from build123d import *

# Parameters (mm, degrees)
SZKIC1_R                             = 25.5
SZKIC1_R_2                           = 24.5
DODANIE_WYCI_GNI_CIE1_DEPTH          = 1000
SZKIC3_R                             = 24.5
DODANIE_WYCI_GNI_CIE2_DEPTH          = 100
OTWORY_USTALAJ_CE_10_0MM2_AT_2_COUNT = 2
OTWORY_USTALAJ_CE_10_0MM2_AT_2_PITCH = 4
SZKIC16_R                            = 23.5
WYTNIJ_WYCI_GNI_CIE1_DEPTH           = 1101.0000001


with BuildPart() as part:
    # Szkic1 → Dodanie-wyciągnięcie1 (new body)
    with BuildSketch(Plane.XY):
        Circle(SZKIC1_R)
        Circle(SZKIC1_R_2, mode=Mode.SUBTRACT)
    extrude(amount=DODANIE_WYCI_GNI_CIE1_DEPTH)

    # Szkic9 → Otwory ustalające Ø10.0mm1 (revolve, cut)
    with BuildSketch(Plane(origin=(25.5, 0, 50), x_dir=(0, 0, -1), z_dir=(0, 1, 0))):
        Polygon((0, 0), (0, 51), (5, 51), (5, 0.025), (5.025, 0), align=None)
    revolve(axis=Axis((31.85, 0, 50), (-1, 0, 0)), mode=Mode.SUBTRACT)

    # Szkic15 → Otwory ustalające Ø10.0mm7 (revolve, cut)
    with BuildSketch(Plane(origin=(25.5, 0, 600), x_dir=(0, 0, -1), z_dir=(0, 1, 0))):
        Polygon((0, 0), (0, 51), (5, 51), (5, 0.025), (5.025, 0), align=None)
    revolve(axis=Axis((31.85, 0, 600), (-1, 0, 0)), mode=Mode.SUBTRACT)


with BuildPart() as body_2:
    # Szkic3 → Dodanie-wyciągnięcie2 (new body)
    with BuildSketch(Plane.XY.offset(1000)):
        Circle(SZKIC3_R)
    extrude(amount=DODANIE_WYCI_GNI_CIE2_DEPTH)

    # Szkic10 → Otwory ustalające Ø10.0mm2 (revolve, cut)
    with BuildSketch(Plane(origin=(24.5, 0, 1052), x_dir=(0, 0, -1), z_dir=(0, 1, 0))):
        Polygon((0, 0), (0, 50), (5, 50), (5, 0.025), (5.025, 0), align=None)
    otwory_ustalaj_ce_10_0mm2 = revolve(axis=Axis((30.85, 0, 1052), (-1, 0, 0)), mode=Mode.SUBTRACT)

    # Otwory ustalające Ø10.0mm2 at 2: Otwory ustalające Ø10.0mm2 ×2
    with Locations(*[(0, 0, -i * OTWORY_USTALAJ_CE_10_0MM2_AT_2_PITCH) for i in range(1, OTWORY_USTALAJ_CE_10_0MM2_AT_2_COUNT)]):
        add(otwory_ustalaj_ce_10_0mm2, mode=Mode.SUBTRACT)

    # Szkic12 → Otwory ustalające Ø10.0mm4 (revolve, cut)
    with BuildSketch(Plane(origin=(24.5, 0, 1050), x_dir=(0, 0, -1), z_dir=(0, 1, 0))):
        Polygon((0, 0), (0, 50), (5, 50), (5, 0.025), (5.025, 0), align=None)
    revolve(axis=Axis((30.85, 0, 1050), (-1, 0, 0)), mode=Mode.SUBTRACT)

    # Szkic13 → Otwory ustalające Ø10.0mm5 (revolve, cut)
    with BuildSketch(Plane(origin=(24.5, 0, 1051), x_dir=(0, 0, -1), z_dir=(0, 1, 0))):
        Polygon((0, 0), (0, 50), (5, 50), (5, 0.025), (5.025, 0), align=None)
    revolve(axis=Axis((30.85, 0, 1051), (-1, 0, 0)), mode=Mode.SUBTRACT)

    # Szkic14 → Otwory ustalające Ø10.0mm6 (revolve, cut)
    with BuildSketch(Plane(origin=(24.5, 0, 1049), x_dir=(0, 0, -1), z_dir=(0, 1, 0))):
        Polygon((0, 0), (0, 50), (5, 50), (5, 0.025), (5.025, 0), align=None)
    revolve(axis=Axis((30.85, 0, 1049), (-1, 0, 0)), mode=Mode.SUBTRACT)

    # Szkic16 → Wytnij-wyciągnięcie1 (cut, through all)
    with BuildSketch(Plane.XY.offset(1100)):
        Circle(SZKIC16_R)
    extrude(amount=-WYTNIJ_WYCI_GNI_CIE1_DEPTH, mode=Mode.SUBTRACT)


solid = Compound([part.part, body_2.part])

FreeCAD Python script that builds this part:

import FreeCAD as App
import Part
import Sketcher

V = App.Vector
Q = App.Units.Quantity

doc = App.newDocument("Part")
body = doc.addObject("PartDesign::Body", "Body")

# Sketch on XY plane
sketch1 = doc.addObject("Sketcher::SketchObject", "Sketch")
body.addObject(sketch1)
sketch1.AttachmentSupport = (doc.XY_Plane, [""])
sketch1.MapMode = "FlatFace"
sketch1.addGeometry(Part.Circle(V(0, 0, 0), V(0, 0, 1), 26), False)
sketch1.addGeometry(Part.Circle(V(0, 0, 0), V(0, 0, 1), 24), False)
sketch1.addConstraint(Sketcher.Constraint("Coincident", 0, 3, -1, 1))
sketch1.addConstraint(Sketcher.Constraint("Coincident", 1, 3, -1, 1))
sketch1.addConstraint(Sketcher.Constraint("Diameter", 0, Q("51 mm")))
sketch1.addConstraint(Sketcher.Constraint("Diameter", 1, Q("49 mm")))
pad1 = doc.addObject("PartDesign::Pad", "Pad")
body.addObject(pad1)
pad1.Profile = sketch1
pad1.Length = 1000

# Sketch on XZ plane
sketch2 = doc.addObject("Sketcher::SketchObject", "Sketch001")
body.addObject(sketch2)
sketch2.AttachmentSupport = (doc.XZ_Plane, [""])
sketch2.MapMode = "FlatFace"
sketch2.addGeometry(Part.LineSegment(V(-25.5, 50, 0), V(25.5, 50, 0)), False)
sketch2.addGeometry(Part.LineSegment(V(25.5, 50, 0), V(25.5, 44.975, 0)), False)
sketch2.addGeometry(Part.LineSegment(V(25.5, 44.975, 0), V(25.475, 45, 0)), False)
sketch2.addGeometry(Part.LineSegment(V(25.475, 45, 0), V(-25.5, 45, 0)), False)
sketch2.addGeometry(Part.LineSegment(V(-25.5, 45, 0), V(-25.5, 50, 0)), False)
sketch2.addGeometry(Part.LineSegment(V(25.5, 50, 0), V(-25.5, 50, 0)), True)  # axis
sketch2.addConstraint(Sketcher.Constraint("Coincident", 0, 2, 1, 1))
sketch2.addConstraint(Sketcher.Constraint("Coincident", 1, 2, 2, 1))
sketch2.addConstraint(Sketcher.Constraint("Coincident", 2, 2, 3, 1))
sketch2.addConstraint(Sketcher.Constraint("Coincident", 3, 2, 4, 1))
sketch2.addConstraint(Sketcher.Constraint("Coincident", 4, 2, 0, 1))
sketch2.addConstraint(Sketcher.Constraint("Horizontal", 0))
sketch2.addConstraint(Sketcher.Constraint("Vertical", 1))
sketch2.addConstraint(Sketcher.Constraint("Horizontal", 3))
sketch2.addConstraint(Sketcher.Constraint("Vertical", 4))
sketch2.addConstraint(Sketcher.Constraint("Horizontal", 5))
sketch2.addConstraint(Sketcher.Constraint("Coincident", 5, 1, 0, 2))
sketch2.addConstraint(Sketcher.Constraint("Vertical", 3, 2, 5, 2))
sketch2.addConstraint(Sketcher.Constraint("DistanceX", 0, 1, 0, 2, Q("51 mm")))
sketch2.addConstraint(Sketcher.Constraint("DistanceY", 4, 1, 4, 2, Q("5 mm")))
sketch2.addConstraint(Sketcher.Constraint("Angle", 2, Q("135 deg")))
sketch2.addConstraint(Sketcher.Constraint("DistanceY", -1, 1, 0, 2, Q("50 mm")))
sketch2.addConstraint(Sketcher.Constraint("DistanceX", -1, 1, 0, 2, Q("25.5 mm")))
sketch2.addConstraint(Sketcher.Constraint("DistanceX", 3, 2, 3, 1, Q("50.975 mm")))
groove = doc.addObject("PartDesign::Groove", "Groove")
body.addObject(groove)
groove.Profile = sketch2
groove.ReferenceAxis = (sketch2, ["Axis0"])
groove.Angle = 360

# Sketch on XZ plane
sketch3 = doc.addObject("Sketcher::SketchObject", "Sketch002")
body.addObject(sketch3)
sketch3.AttachmentSupport = (doc.XZ_Plane, [""])
sketch3.MapMode = "FlatFace"
sketch3.addGeometry(Part.LineSegment(V(-25.5, 600, 0), V(25.5, 600, 0)), False)
sketch3.addGeometry(Part.LineSegment(V(25.5, 600, 0), V(25.5, 594.975, 0)), False)
sketch3.addGeometry(Part.LineSegment(V(25.5, 594.975, 0), V(25.475, 595, 0)), False)
sketch3.addGeometry(Part.LineSegment(V(25.475, 595, 0), V(-25.5, 595, 0)), False)
sketch3.addGeometry(Part.LineSegment(V(-25.5, 595, 0), V(-25.5, 600, 0)), False)
sketch3.addGeometry(Part.LineSegment(V(25.5, 600, 0), V(-25.5, 600, 0)), True)  # axis
sketch3.addConstraint(Sketcher.Constraint("Coincident", 0, 2, 1, 1))
sketch3.addConstraint(Sketcher.Constraint("Coincident", 1, 2, 2, 1))
sketch3.addConstraint(Sketcher.Constraint("Coincident", 2, 2, 3, 1))
sketch3.addConstraint(Sketcher.Constraint("Coincident", 3, 2, 4, 1))
sketch3.addConstraint(Sketcher.Constraint("Coincident", 4, 2, 0, 1))
sketch3.addConstraint(Sketcher.Constraint("Horizontal", 0))
sketch3.addConstraint(Sketcher.Constraint("Vertical", 1))
sketch3.addConstraint(Sketcher.Constraint("Horizontal", 3))
sketch3.addConstraint(Sketcher.Constraint("Vertical", 4))
sketch3.addConstraint(Sketcher.Constraint("Horizontal", 5))
sketch3.addConstraint(Sketcher.Constraint("Coincident", 5, 1, 0, 2))
sketch3.addConstraint(Sketcher.Constraint("Vertical", 3, 2, 5, 2))
sketch3.addConstraint(Sketcher.Constraint("DistanceX", 0, 1, 0, 2, Q("51 mm")))
sketch3.addConstraint(Sketcher.Constraint("DistanceY", 4, 1, 4, 2, Q("5 mm")))
sketch3.addConstraint(Sketcher.Constraint("Angle", 2, Q("135 deg")))
sketch3.addConstraint(Sketcher.Constraint("DistanceY", -1, 1, 0, 2, Q("600 mm")))
sketch3.addConstraint(Sketcher.Constraint("DistanceX", -1, 1, 0, 2, Q("25.5 mm")))
sketch3.addConstraint(Sketcher.Constraint("DistanceX", 3, 2, 3, 1, Q("50.975 mm")))
groove2 = doc.addObject("PartDesign::Groove", "Groove001")
body.addObject(groove2)
groove2.Profile = sketch3
groove2.ReferenceAxis = (sketch3, ["Axis0"])
groove2.Angle = 360
body2 = doc.addObject("PartDesign::Body", "Body001")

# Sketch on XY plane
sketch4 = doc.addObject("Sketcher::SketchObject", "Sketch003")
body2.addObject(sketch4)
sketch4.AttachmentSupport = (doc.getObject("XY_Plane001"), [""])
sketch4.MapMode = "FlatFace"
sketch4.AttachmentOffset = App.Placement(V(0, 0, 1000), App.Rotation())
sketch4.addGeometry(Part.Circle(V(0, 0, 0), V(0, 0, 1), 24), False)
sketch4.addConstraint(Sketcher.Constraint("Coincident", 0, 3, -1, 1))
sketch4.addConstraint(Sketcher.Constraint("Diameter", 0, Q("49 mm")))
pad2 = doc.addObject("PartDesign::Pad", "Pad001")
body2.addObject(pad2)
pad2.Profile = sketch4
pad2.Length = 100

# Sketch on XZ plane
sketch5 = doc.addObject("Sketcher::SketchObject", "Sketch004")
body2.addObject(sketch5)
sketch5.AttachmentSupport = (doc.getObject("XZ_Plane001"), [""])
sketch5.MapMode = "FlatFace"
sketch5.addGeometry(Part.LineSegment(V(-25.5, 1052, 0), V(24.5, 1052, 0)), False)
sketch5.addGeometry(Part.LineSegment(V(24.5, 1052, 0), V(24.5, 1046.975, 0)), False)
sketch5.addGeometry(Part.LineSegment(V(24.5, 1046.975, 0), V(24.475, 1047, 0)), False)
sketch5.addGeometry(Part.LineSegment(V(24.475, 1047, 0), V(-25.5, 1047, 0)), False)
sketch5.addGeometry(Part.LineSegment(V(-25.5, 1047, 0), V(-25.5, 1052, 0)), False)
sketch5.addGeometry(Part.LineSegment(V(24.5, 1052, 0), V(-25.5, 1052, 0)), True)  # axis
sketch5.addConstraint(Sketcher.Constraint("Coincident", 0, 2, 1, 1))
sketch5.addConstraint(Sketcher.Constraint("Coincident", 1, 2, 2, 1))
sketch5.addConstraint(Sketcher.Constraint("Coincident", 2, 2, 3, 1))
sketch5.addConstraint(Sketcher.Constraint("Coincident", 3, 2, 4, 1))
sketch5.addConstraint(Sketcher.Constraint("Coincident", 4, 2, 0, 1))
sketch5.addConstraint(Sketcher.Constraint("Horizontal", 0))
sketch5.addConstraint(Sketcher.Constraint("Vertical", 1))
sketch5.addConstraint(Sketcher.Constraint("Horizontal", 3))
sketch5.addConstraint(Sketcher.Constraint("Vertical", 4))
sketch5.addConstraint(Sketcher.Constraint("Horizontal", 5))
sketch5.addConstraint(Sketcher.Constraint("Coincident", 5, 1, 0, 2))
sketch5.addConstraint(Sketcher.Constraint("Vertical", 3, 2, 5, 2))
sketch5.addConstraint(Sketcher.Constraint("DistanceX", 0, 1, 0, 2, Q("50 mm")))
sketch5.addConstraint(Sketcher.Constraint("DistanceY", 4, 1, 4, 2, Q("5 mm")))
sketch5.addConstraint(Sketcher.Constraint("Angle", 2, Q("135 deg")))
sketch5.addConstraint(Sketcher.Constraint("DistanceY", -1, 1, 0, 2, Q("1052 mm")))
sketch5.addConstraint(Sketcher.Constraint("DistanceX", -1, 1, 0, 2, Q("24.5 mm")))
sketch5.addConstraint(Sketcher.Constraint("DistanceX", 3, 2, 3, 1, Q("49.975 mm")))
groove3 = doc.addObject("PartDesign::Groove", "Groove002")
body2.addObject(groove3)
groove3.Profile = sketch5
groove3.ReferenceAxis = (sketch5, ["Axis0"])
groove3.Angle = 360
doc.recompute()

linearpattern = doc.addObject("PartDesign::LinearPattern", "LinearPattern")
body2.addObject(linearpattern)
linearpattern.Originals = [groove3]
linearpattern.Direction = (doc.getObject("Z_Axis001"), [""])
linearpattern.Mode = "offset"
linearpattern.Offset = 4
linearpattern.Occurrences = 2
linearpattern.Reversed = True
body2.Tip = linearpattern

# Sketch on XZ plane
sketch6 = doc.addObject("Sketcher::SketchObject", "Sketch005")
body2.addObject(sketch6)
sketch6.AttachmentSupport = (doc.getObject("XZ_Plane001"), [""])
sketch6.MapMode = "FlatFace"
sketch6.addGeometry(Part.LineSegment(V(-25.5, 1050, 0), V(24.5, 1050, 0)), False)
sketch6.addGeometry(Part.LineSegment(V(24.5, 1050, 0), V(24.5, 1044.975, 0)), False)
sketch6.addGeometry(Part.LineSegment(V(24.5, 1044.975, 0), V(24.475, 1045, 0)), False)
sketch6.addGeometry(Part.LineSegment(V(24.475, 1045, 0), V(-25.5, 1045, 0)), False)
sketch6.addGeometry(Part.LineSegment(V(-25.5, 1045, 0), V(-25.5, 1050, 0)), False)
sketch6.addGeometry(Part.LineSegment(V(24.5, 1050, 0), V(-25.5, 1050, 0)), True)  # axis
sketch6.addConstraint(Sketcher.Constraint("Coincident", 0, 2, 1, 1))
sketch6.addConstraint(Sketcher.Constraint("Coincident", 1, 2, 2, 1))
sketch6.addConstraint(Sketcher.Constraint("Coincident", 2, 2, 3, 1))
sketch6.addConstraint(Sketcher.Constraint("Coincident", 3, 2, 4, 1))
sketch6.addConstraint(Sketcher.Constraint("Coincident", 4, 2, 0, 1))
sketch6.addConstraint(Sketcher.Constraint("Horizontal", 0))
sketch6.addConstraint(Sketcher.Constraint("Vertical", 1))
sketch6.addConstraint(Sketcher.Constraint("Horizontal", 3))
sketch6.addConstraint(Sketcher.Constraint("Vertical", 4))
sketch6.addConstraint(Sketcher.Constraint("Horizontal", 5))
sketch6.addConstraint(Sketcher.Constraint("Coincident", 5, 1, 0, 2))
sketch6.addConstraint(Sketcher.Constraint("Vertical", 3, 2, 5, 2))
sketch6.addConstraint(Sketcher.Constraint("DistanceX", 0, 1, 0, 2, Q("50 mm")))
sketch6.addConstraint(Sketcher.Constraint("DistanceY", 4, 1, 4, 2, Q("5 mm")))
sketch6.addConstraint(Sketcher.Constraint("Angle", 2, Q("135 deg")))
sketch6.addConstraint(Sketcher.Constraint("DistanceY", -1, 1, 0, 2, Q("1050 mm")))
sketch6.addConstraint(Sketcher.Constraint("DistanceX", -1, 1, 0, 2, Q("24.5 mm")))
sketch6.addConstraint(Sketcher.Constraint("DistanceX", 3, 2, 3, 1, Q("49.975 mm")))
groove4 = doc.addObject("PartDesign::Groove", "Groove003")
body2.addObject(groove4)
groove4.Profile = sketch6
groove4.ReferenceAxis = (sketch6, ["Axis0"])
groove4.Angle = 360

# Sketch on XZ plane
sketch7 = doc.addObject("Sketcher::SketchObject", "Sketch006")
body2.addObject(sketch7)
sketch7.AttachmentSupport = (doc.getObject("XZ_Plane001"), [""])
sketch7.MapMode = "FlatFace"
sketch7.addGeometry(Part.LineSegment(V(-25.5, 1051, 0), V(24.5, 1051, 0)), False)
sketch7.addGeometry(Part.LineSegment(V(24.5, 1051, 0), V(24.5, 1045.975, 0)), False)
sketch7.addGeometry(Part.LineSegment(V(24.5, 1045.975, 0), V(24.475, 1046, 0)), False)
sketch7.addGeometry(Part.LineSegment(V(24.475, 1046, 0), V(-25.5, 1046, 0)), False)
sketch7.addGeometry(Part.LineSegment(V(-25.5, 1046, 0), V(-25.5, 1051, 0)), False)
sketch7.addGeometry(Part.LineSegment(V(24.5, 1051, 0), V(-25.5, 1051, 0)), True)  # axis
sketch7.addConstraint(Sketcher.Constraint("Coincident", 0, 2, 1, 1))
sketch7.addConstraint(Sketcher.Constraint("Coincident", 1, 2, 2, 1))
sketch7.addConstraint(Sketcher.Constraint("Coincident", 2, 2, 3, 1))
sketch7.addConstraint(Sketcher.Constraint("Coincident", 3, 2, 4, 1))
sketch7.addConstraint(Sketcher.Constraint("Coincident", 4, 2, 0, 1))
sketch7.addConstraint(Sketcher.Constraint("Horizontal", 0))
sketch7.addConstraint(Sketcher.Constraint("Vertical", 1))
sketch7.addConstraint(Sketcher.Constraint("Horizontal", 3))
sketch7.addConstraint(Sketcher.Constraint("Vertical", 4))
sketch7.addConstraint(Sketcher.Constraint("Horizontal", 5))
sketch7.addConstraint(Sketcher.Constraint("Coincident", 5, 1, 0, 2))
sketch7.addConstraint(Sketcher.Constraint("Vertical", 3, 2, 5, 2))
sketch7.addConstraint(Sketcher.Constraint("DistanceX", 0, 1, 0, 2, Q("50 mm")))
sketch7.addConstraint(Sketcher.Constraint("DistanceY", 4, 1, 4, 2, Q("5 mm")))
sketch7.addConstraint(Sketcher.Constraint("Angle", 2, Q("135 deg")))
sketch7.addConstraint(Sketcher.Constraint("DistanceY", -1, 1, 0, 2, Q("1051 mm")))
sketch7.addConstraint(Sketcher.Constraint("DistanceX", -1, 1, 0, 2, Q("24.5 mm")))
sketch7.addConstraint(Sketcher.Constraint("DistanceX", 3, 2, 3, 1, Q("49.975 mm")))
groove5 = doc.addObject("PartDesign::Groove", "Groove004")
body2.addObject(groove5)
groove5.Profile = sketch7
groove5.ReferenceAxis = (sketch7, ["Axis0"])
groove5.Angle = 360

# Sketch on XZ plane
sketch8 = doc.addObject("Sketcher::SketchObject", "Sketch007")
body2.addObject(sketch8)
sketch8.AttachmentSupport = (doc.getObject("XZ_Plane001"), [""])
sketch8.MapMode = "FlatFace"
sketch8.addGeometry(Part.LineSegment(V(-25.5, 1049, 0), V(24.5, 1049, 0)), False)
sketch8.addGeometry(Part.LineSegment(V(24.5, 1049, 0), V(24.5, 1043.975, 0)), False)
sketch8.addGeometry(Part.LineSegment(V(24.5, 1043.975, 0), V(24.475, 1044, 0)), False)
sketch8.addGeometry(Part.LineSegment(V(24.475, 1044, 0), V(-25.5, 1044, 0)), False)
sketch8.addGeometry(Part.LineSegment(V(-25.5, 1044, 0), V(-25.5, 1049, 0)), False)
sketch8.addGeometry(Part.LineSegment(V(24.5, 1049, 0), V(-25.5, 1049, 0)), True)  # axis
sketch8.addConstraint(Sketcher.Constraint("Coincident", 0, 2, 1, 1))
sketch8.addConstraint(Sketcher.Constraint("Coincident", 1, 2, 2, 1))
sketch8.addConstraint(Sketcher.Constraint("Coincident", 2, 2, 3, 1))
sketch8.addConstraint(Sketcher.Constraint("Coincident", 3, 2, 4, 1))
sketch8.addConstraint(Sketcher.Constraint("Coincident", 4, 2, 0, 1))
sketch8.addConstraint(Sketcher.Constraint("Horizontal", 0))
sketch8.addConstraint(Sketcher.Constraint("Vertical", 1))
sketch8.addConstraint(Sketcher.Constraint("Horizontal", 3))
sketch8.addConstraint(Sketcher.Constraint("Vertical", 4))
sketch8.addConstraint(Sketcher.Constraint("Horizontal", 5))
sketch8.addConstraint(Sketcher.Constraint("Coincident", 5, 1, 0, 2))
sketch8.addConstraint(Sketcher.Constraint("Vertical", 3, 2, 5, 2))
sketch8.addConstraint(Sketcher.Constraint("DistanceX", 0, 1, 0, 2, Q("50 mm")))
sketch8.addConstraint(Sketcher.Constraint("DistanceY", 4, 1, 4, 2, Q("5 mm")))
sketch8.addConstraint(Sketcher.Constraint("Angle", 2, Q("135 deg")))
sketch8.addConstraint(Sketcher.Constraint("DistanceY", -1, 1, 0, 2, Q("1049 mm")))
sketch8.addConstraint(Sketcher.Constraint("DistanceX", -1, 1, 0, 2, Q("24.5 mm")))
sketch8.addConstraint(Sketcher.Constraint("DistanceX", 3, 2, 3, 1, Q("49.975 mm")))
groove6 = doc.addObject("PartDesign::Groove", "Groove005")
body2.addObject(groove6)
groove6.Profile = sketch8
groove6.ReferenceAxis = (sketch8, ["Axis0"])
groove6.Angle = 360

# Sketch on XY plane
sketch9 = doc.addObject("Sketcher::SketchObject", "Sketch008")
body2.addObject(sketch9)
sketch9.AttachmentSupport = (doc.getObject("XY_Plane001"), [""])
sketch9.MapMode = "FlatFace"
sketch9.AttachmentOffset = App.Placement(V(0, 0, 1100), App.Rotation())
sketch9.addGeometry(Part.Circle(V(0, 0, 0), V(0, 0, 1), 24), False)
sketch9.addConstraint(Sketcher.Constraint("Coincident", 0, 3, -1, 1))
sketch9.addConstraint(Sketcher.Constraint("Diameter", 0, Q("47 mm")))
pocket1 = doc.addObject("PartDesign::Pocket", "Pocket")
body2.addObject(pocket1)
pocket1.Profile = sketch9
pocket1.Type = "ThroughAll"

doc.recompute()
